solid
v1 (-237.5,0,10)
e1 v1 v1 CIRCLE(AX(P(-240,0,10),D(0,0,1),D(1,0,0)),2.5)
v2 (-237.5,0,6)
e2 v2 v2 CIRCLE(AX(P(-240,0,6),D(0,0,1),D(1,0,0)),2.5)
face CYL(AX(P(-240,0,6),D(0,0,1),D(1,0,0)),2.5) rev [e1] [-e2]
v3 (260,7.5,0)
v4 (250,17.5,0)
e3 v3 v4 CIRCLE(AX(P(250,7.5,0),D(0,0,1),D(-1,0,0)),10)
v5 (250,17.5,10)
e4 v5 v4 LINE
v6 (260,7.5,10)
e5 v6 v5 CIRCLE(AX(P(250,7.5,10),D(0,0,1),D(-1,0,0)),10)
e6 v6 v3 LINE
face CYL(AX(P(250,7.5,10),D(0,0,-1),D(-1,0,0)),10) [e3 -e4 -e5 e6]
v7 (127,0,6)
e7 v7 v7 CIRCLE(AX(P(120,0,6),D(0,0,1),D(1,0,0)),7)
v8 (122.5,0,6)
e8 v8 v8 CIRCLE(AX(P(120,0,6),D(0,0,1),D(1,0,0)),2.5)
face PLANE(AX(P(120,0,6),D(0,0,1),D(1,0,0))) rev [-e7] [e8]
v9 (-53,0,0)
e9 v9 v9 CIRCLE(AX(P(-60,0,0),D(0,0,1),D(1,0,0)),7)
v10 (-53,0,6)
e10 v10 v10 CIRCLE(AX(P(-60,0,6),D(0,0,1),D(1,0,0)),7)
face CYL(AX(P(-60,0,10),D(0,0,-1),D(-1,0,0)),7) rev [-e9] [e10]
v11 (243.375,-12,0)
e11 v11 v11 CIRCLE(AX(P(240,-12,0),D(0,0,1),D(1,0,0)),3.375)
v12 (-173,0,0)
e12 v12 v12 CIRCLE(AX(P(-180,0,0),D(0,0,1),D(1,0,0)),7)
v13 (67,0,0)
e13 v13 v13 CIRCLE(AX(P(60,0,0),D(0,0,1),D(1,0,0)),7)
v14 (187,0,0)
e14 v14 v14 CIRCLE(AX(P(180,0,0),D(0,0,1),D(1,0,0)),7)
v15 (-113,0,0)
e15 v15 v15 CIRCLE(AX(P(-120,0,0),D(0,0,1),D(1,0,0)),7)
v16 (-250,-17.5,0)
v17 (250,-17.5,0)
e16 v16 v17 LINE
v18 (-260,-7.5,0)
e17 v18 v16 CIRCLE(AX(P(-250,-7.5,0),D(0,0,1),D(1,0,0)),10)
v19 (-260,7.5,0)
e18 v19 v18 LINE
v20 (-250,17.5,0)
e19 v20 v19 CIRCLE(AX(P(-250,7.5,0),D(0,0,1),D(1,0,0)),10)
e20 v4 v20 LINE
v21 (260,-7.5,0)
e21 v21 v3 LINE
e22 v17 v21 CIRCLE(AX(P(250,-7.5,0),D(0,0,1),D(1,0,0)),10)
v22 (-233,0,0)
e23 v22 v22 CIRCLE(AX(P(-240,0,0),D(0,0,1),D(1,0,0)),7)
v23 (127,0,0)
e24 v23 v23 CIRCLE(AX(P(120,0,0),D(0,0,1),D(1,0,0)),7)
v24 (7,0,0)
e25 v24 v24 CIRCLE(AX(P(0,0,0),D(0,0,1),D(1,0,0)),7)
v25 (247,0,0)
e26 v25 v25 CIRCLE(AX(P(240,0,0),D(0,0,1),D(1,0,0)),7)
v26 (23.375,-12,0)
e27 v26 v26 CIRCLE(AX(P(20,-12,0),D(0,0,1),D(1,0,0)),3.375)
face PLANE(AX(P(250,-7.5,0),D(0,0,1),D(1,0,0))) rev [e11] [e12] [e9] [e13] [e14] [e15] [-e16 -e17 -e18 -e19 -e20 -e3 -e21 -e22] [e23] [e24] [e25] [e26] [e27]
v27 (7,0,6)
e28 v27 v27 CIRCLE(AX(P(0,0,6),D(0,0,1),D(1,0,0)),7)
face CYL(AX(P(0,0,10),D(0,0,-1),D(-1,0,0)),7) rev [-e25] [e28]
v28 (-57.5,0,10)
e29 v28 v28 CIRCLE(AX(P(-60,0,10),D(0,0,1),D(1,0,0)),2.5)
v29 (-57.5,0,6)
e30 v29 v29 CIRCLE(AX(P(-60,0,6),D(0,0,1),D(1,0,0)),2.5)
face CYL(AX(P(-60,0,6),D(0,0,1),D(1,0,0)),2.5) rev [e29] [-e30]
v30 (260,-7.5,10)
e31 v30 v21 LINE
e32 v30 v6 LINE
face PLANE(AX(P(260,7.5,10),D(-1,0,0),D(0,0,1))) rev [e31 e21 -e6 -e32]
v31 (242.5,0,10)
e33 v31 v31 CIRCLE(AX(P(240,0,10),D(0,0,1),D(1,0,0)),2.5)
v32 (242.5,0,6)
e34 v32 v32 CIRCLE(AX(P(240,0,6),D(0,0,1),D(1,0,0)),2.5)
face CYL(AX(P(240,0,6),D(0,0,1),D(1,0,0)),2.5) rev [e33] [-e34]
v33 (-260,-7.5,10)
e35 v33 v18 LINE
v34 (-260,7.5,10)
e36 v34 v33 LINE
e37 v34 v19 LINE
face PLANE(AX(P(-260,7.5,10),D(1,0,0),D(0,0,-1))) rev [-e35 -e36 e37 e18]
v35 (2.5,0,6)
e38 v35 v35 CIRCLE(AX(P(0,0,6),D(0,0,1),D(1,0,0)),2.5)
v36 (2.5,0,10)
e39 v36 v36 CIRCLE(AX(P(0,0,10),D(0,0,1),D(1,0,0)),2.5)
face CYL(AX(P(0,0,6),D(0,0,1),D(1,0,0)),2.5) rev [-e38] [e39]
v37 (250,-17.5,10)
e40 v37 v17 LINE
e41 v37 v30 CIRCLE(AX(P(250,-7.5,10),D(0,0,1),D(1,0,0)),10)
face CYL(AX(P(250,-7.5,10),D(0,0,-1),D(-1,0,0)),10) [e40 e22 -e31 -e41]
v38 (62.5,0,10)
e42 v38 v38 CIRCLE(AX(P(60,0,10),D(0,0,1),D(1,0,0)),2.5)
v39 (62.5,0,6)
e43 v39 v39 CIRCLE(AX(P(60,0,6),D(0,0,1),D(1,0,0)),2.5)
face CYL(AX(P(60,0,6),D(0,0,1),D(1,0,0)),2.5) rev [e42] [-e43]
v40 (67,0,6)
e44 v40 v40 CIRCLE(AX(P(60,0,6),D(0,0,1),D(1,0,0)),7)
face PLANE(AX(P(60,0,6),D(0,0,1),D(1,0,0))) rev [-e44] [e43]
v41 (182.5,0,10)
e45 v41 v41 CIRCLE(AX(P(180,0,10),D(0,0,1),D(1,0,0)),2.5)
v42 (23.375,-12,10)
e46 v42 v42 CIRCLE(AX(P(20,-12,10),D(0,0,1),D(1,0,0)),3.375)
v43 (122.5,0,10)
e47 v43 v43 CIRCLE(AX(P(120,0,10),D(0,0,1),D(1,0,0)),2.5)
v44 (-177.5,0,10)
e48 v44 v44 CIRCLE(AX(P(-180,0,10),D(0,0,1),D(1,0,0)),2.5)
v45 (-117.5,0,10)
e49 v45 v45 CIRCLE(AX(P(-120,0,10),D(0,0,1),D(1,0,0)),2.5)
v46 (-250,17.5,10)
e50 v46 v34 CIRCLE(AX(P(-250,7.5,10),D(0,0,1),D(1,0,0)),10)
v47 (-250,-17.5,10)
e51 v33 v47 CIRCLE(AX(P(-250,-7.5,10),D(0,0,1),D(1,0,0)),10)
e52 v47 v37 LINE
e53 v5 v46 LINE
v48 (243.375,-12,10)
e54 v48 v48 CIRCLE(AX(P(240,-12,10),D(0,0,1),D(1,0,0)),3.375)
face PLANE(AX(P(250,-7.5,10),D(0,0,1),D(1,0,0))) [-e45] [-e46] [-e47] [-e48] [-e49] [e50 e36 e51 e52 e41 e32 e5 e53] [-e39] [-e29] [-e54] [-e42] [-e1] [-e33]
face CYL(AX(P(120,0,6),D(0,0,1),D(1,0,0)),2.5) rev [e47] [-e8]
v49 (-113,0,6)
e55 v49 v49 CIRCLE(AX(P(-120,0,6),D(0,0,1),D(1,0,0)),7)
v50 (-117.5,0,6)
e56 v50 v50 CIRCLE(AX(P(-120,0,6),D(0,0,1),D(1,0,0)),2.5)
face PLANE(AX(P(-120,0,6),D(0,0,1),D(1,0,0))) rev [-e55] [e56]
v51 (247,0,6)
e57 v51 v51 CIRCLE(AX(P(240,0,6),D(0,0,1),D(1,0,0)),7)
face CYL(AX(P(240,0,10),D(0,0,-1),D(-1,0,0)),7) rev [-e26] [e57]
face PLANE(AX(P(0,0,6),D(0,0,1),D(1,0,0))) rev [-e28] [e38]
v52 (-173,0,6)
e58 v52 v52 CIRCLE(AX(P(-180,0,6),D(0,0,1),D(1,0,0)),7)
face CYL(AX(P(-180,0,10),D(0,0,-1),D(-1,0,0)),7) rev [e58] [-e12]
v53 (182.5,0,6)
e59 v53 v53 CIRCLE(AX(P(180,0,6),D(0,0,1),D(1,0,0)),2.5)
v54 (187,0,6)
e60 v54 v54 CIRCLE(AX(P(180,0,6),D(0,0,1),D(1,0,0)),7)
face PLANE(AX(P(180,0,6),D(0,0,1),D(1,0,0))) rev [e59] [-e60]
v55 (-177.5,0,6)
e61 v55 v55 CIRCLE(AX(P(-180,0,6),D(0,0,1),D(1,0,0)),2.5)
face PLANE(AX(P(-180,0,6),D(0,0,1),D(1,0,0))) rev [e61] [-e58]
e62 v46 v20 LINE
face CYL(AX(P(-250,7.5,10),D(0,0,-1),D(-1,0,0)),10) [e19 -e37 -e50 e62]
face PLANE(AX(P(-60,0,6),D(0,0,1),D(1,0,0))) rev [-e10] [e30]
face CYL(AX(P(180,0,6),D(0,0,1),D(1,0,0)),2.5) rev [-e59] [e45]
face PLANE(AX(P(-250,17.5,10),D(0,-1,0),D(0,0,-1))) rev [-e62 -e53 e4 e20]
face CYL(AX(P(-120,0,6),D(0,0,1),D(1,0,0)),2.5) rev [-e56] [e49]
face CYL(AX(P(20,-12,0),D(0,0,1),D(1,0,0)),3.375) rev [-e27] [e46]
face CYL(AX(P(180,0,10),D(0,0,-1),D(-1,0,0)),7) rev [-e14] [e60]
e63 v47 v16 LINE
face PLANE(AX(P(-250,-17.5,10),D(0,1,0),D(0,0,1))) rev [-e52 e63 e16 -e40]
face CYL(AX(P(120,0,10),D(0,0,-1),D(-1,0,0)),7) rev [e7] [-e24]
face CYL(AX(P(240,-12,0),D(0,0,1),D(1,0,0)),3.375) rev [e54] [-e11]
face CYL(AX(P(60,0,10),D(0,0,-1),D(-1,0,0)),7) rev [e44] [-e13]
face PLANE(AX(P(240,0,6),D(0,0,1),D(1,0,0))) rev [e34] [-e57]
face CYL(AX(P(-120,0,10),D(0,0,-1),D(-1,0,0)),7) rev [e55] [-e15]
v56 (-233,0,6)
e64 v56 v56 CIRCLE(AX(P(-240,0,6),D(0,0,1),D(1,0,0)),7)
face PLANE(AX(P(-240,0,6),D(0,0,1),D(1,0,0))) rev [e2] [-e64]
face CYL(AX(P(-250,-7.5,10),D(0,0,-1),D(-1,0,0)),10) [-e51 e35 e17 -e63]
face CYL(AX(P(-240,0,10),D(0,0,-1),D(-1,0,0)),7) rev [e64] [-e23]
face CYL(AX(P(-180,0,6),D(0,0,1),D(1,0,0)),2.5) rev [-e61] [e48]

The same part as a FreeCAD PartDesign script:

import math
import FreeCAD as App
import Part
import Sketcher

V = App.Vector

doc = App.newDocument("Part")
body = doc.addObject("PartDesign::Body", "Body")

# Sketch on XY plane
sketch1 = body.newObject("Sketcher::SketchObject", "Sketch")
sketch1.AttachmentSupport = (doc.getObject("XY_Plane"), [""])
sketch1.MapMode = "FlatFace"
sketch1.addGeometry([
    Part.LineSegment(V(250, 17.5, 0), V(-250, 17.5, 0)),  # 0
    Part.ArcOfCircle(Part.Circle(V(-250, 7.5, 0), V(0, 0, 1), 10), math.radians(90), math.radians(180)),  # 1
    Part.LineSegment(V(-260, 7.5, 0), V(-260, -7.5, 0)),  # 2
    Part.ArcOfCircle(Part.Circle(V(-250, -7.5, 0), V(0, 0, 1), 10), math.radians(180), math.radians(270)),  # 3
    Part.LineSegment(V(-250, -17.5, 0), V(250, -17.5, 0)),  # 4
    Part.ArcOfCircle(Part.Circle(V(250, -7.5, 0), V(0, 0, 1), 10), math.radians(-90), math.radians(0)),  # 5
    Part.LineSegment(V(260, -7.5, 0), V(260, 7.5, 0)),  # 6
    Part.ArcOfCircle(Part.Circle(V(250, 7.5, 0), V(0, 0, 1), 10), math.radians(0), math.radians(90)),  # 7
    Part.Circle(V(240, 0, 0), V(0, 0, 1), 7),  # 8
    Part.Circle(V(180, 0, 0), V(0, 0, 1), 7),  # 9
    Part.Circle(V(120, 0, 0), V(0, 0, 1), 7),  # 10
    Part.Circle(V(60, 0, 0), V(0, 0, 1), 7),  # 11
    Part.Circle(V(0, 0, 0), V(0, 0, 1), 7),  # 12
    Part.Circle(V(-60, 0, 0), V(0, 0, 1), 7),  # 13
    Part.Circle(V(-120, 0, 0), V(0, 0, 1), 7),  # 14
    Part.Circle(V(-180, 0, 0), V(0, 0, 1), 7),  # 15
    Part.Circle(V(-240, 0, 0), V(0, 0, 1), 7),  # 16
], False)
sketch1.addConstraint([
    Sketcher.Constraint("Tangent", 0, 2, 1, 1),
    Sketcher.Constraint("Tangent", 1, 2, 2, 1),
    Sketcher.Constraint("Tangent", 2, 2, 3, 1),
    Sketcher.Constraint("Tangent", 3, 2, 4, 1),
    Sketcher.Constraint("Tangent", 4, 2, 5, 1),
    Sketcher.Constraint("Tangent", 5, 2, 6, 1),
    Sketcher.Constraint("Tangent", 6, 2, 7, 1),
    Sketcher.Constraint("Tangent", 7, 2, 0, 1),
    Sketcher.Constraint("Horizontal", 0),
    Sketcher.Constraint("Vertical", 2),
    Sketcher.Constraint("Horizontal", 4),
    Sketcher.Constraint("Vertical", 6),
    Sketcher.Constraint("Coincident", 12, 3, -1, 1),
    Sketcher.Constraint("Equal", 1, 3),
    Sketcher.Constraint("Equal", 3, 5),
    Sketcher.Constraint("Equal", 5, 7),
    Sketcher.Constraint("Equal", 8, 9),
    Sketcher.Constraint("Equal", 9, 10),
    Sketcher.Constraint("Equal", 10, 11),
    Sketcher.Constraint("Equal", 11, 12),
    Sketcher.Constraint("Equal", 12, 13),
    Sketcher.Constraint("Equal", 13, 14),
    Sketcher.Constraint("Equal", 14, 15),
    Sketcher.Constraint("Equal", 15, 16),
    Sketcher.Constraint("Symmetric", 1, 3, 5, 3, -1, 1),
    Sketcher.Constraint("Symmetric", 11, 3, 13, 3, -1, 1),
    Sketcher.Constraint("Symmetric", 10, 3, 14, 3, -1, 1),
    Sketcher.Constraint("Symmetric", 9, 3, 15, 3, -1, 1),
    Sketcher.Constraint("Symmetric", 8, 3, 16, 3, -1, 1),
    Sketcher.Constraint("PointOnObject", 8, 3, -1),
    Sketcher.Constraint("PointOnObject", 9, 3, -1),
    Sketcher.Constraint("PointOnObject", 10, 3, -1),
    Sketcher.Constraint("PointOnObject", 11, 3, -1),
    Sketcher.Constraint("Diameter", 8, 14.0),
    Sketcher.Constraint("Radius", 1, 10.0),
    Sketcher.Constraint("DistanceX", 0, 2, 0, 1, 500.0),
    Sketcher.Constraint("DistanceY", 2, 2, 2, 1, 15.0),
    Sketcher.Constraint("DistanceX", -1, 1, 8, 3, 240.0),
    Sketcher.Constraint("DistanceX", -1, 1, 9, 3, 180.0),
    Sketcher.Constraint("DistanceX", -1, 1, 10, 3, 120.0),
    Sketcher.Constraint("DistanceX", -1, 1, 11, 3, 60.0),
])
pad1 = body.newObject("PartDesign::Pad", "Pad")
pad1.Profile = sketch1
pad1.Length = 10

# Sketch on XY plane
sketch2 = body.newObject("Sketcher::SketchObject", "Sketch001")
sketch2.AttachmentSupport = (doc.getObject("XY_Plane"), [""])
sketch2.MapMode = "FlatFace"
sketch2.AttachmentOffset = App.Placement(V(0, 0, 6), App.Rotation())
sketch2.addGeometry([
    Part.Circle(V(-240, 0, 0), V(0, 0, 1), 7),  # 0
    Part.Circle(V(-240, 0, 0), V(0, 0, 1), 2.5),  # 1
    Part.Circle(V(-180, 0, 0), V(0, 0, 1), 7),  # 2
    Part.Circle(V(-180, 0, 0), V(0, 0, 1), 2.5),  # 3
    Part.Circle(V(-120, 0, 0), V(0, 0, 1), 7),  # 4
    Part.Circle(V(-120, 0, 0), V(0, 0, 1), 2.5),  # 5
    Part.Circle(V(-60, 0, 0), V(0, 0, 1), 7),  # 6
    Part.Circle(V(-60, 0, 0), V(0, 0, 1), 2.5),  # 7
    Part.Circle(V(0, 0, 0), V(0, 0, 1), 7),  # 8
    Part.Circle(V(0, 0, 0), V(0, 0, 1), 2.5),  # 9
    Part.Circle(V(60, 0, 0), V(0, 0, 1), 7),  # 10
    Part.Circle(V(60, 0, 0), V(0, 0, 1), 2.5),  # 11
    Part.Circle(V(120, 0, 0), V(0, 0, 1), 7),  # 12
    Part.Circle(V(120, 0, 0), V(0, 0, 1), 2.5),  # 13
    Part.Circle(V(180, 0, 0), V(0, 0, 1), 7),  # 14
    Part.Circle(V(180, 0, 0), V(0, 0, 1), 2.5),  # 15
    Part.Circle(V(240, 0, 0), V(0, 0, 1), 7),  # 16
    Part.Circle(V(240, 0, 0), V(0, 0, 1), 2.5),  # 17
], False)
sketch2.addConstraint([
    Sketcher.Constraint("Coincident", 8, 3, -1, 1),
    Sketcher.Constraint("Coincident", 9, 3, -1, 1),
    Sketcher.Constraint("Coincident", 1, 3, 0, 3),
    Sketcher.Constraint("Coincident", 3, 3, 2, 3),
    Sketcher.Constraint("Coincident", 5, 3, 4, 3),
    Sketcher.Constraint("Coincident", 7, 3, 6, 3),
    Sketcher.Constraint("Coincident", 11, 3, 10, 3),
    Sketcher.Constraint("Coincident", 13, 3, 12, 3),
    Sketcher.Constraint("Coincident", 15, 3, 14, 3),
    Sketcher.Constraint("Coincident", 17, 3, 16, 3),
    Sketcher.Constraint("Equal", 0, 2),
    Sketcher.Constraint("Equal", 1, 3),
    Sketcher.Constraint("Equal", 2, 4),
    Sketcher.Constraint("Equal", 3, 5),
    Sketcher.Constraint("Equal", 4, 6),
    Sketcher.Constraint("Equal", 5, 7),
    Sketcher.Constraint("Equal", 6, 8),
    Sketcher.Constraint("Equal", 7, 9),
    Sketcher.Constraint("Equal", 8, 10),
    Sketcher.Constraint("Equal", 9, 11),
    Sketcher.Constraint("Equal", 10, 12),
    Sketcher.Constraint("Equal", 11, 13),
    Sketcher.Constraint("Equal", 12, 14),
    Sketcher.Constraint("Equal", 13, 15),
    Sketcher.Constraint("Equal", 14, 16),
    Sketcher.Constraint("Equal", 15, 17),
    Sketcher.Constraint("Symmetric", 6, 3, 10, 3, -1, 1),
    Sketcher.Constraint("Symmetric", 4, 3, 12, 3, -1, 1),
    Sketcher.Constraint("Symmetric", 2, 3, 14, 3, -1, 1),
    Sketcher.Constraint("Symmetric", 0, 3, 16, 3, -1, 1),
    Sketcher.Constraint("PointOnObject", 0, 3, -1),
    Sketcher.Constraint("PointOnObject", 2, 3, -1),
    Sketcher.Constraint("PointOnObject", 4, 3, -1),
    Sketcher.Constraint("PointOnObject", 6, 3, -1),
    Sketcher.Constraint("Diameter", 0, 14.0),
    Sketcher.Constraint("Diameter", 1, 5.0),
    Sketcher.Constraint("DistanceX", 0, 3, -1, 1, 240.0),
    Sketcher.Constraint("DistanceX", 2, 3, -1, 1, 180.0),
    Sketcher.Constraint("DistanceX", 4, 3, -1, 1, 120.0),
    Sketcher.Constraint("DistanceX", 6, 3, -1, 1, 60.0),
])
pad2 = body.newObject("PartDesign::Pad", "Pad001")
pad2.Profile = sketch2
pad2.Length = 4

# Sketch on XY plane
sketch3 = body.newObject("Sketcher::SketchObject", "Sketch002")
sketch3.AttachmentSupport = (doc.getObject("XY_Plane"), [""])
sketch3.MapMode = "FlatFace"
sketch3.AttachmentOffset = App.Placement(V(0, 0, 10), App.Rotation())
sketch3.addGeometry(Part.Circle(V(20, -12, 0), V(0, 0, 1), 3.375), False)
sketch3.addConstraint([
    Sketcher.Constraint("Diameter", 0, 6.75),
    Sketcher.Constraint("DistanceX", -1, 1, 0, 3, 20.0),
    Sketcher.Constraint("DistanceY", 0, 3, -1, 1, 12.0),
])
pocket1 = body.newObject("PartDesign::Pocket", "Pocket")
pocket1.Profile = sketch3
pocket1.Type = "ThroughAll"

# Sketch on XY plane
sketch4 = body.newObject("Sketcher::SketchObject", "Sketch003")
sketch4.AttachmentSupport = (doc.getObject("XY_Plane"), [""])
sketch4.MapMode = "FlatFace"
sketch4.AttachmentOffset = App.Placement(V(0, 0, 10), App.Rotation())
sketch4.addGeometry(Part.Circle(V(240, -12, 0), V(0, 0, 1), 3.375), False)
sketch4.addConstraint([
    Sketcher.Constraint("Diameter", 0, 6.75),
    Sketcher.Constraint("DistanceX", -1, 1, 0, 3, 240.0),
    Sketcher.Constraint("DistanceY", 0, 3, -1, 1, 12.0),
])
pocket2 = body.newObject("PartDesign::Pocket", "Pocket001")
pocket2.Profile = sketch4
pocket2.Type = "ThroughAll"

doc.recompute()
